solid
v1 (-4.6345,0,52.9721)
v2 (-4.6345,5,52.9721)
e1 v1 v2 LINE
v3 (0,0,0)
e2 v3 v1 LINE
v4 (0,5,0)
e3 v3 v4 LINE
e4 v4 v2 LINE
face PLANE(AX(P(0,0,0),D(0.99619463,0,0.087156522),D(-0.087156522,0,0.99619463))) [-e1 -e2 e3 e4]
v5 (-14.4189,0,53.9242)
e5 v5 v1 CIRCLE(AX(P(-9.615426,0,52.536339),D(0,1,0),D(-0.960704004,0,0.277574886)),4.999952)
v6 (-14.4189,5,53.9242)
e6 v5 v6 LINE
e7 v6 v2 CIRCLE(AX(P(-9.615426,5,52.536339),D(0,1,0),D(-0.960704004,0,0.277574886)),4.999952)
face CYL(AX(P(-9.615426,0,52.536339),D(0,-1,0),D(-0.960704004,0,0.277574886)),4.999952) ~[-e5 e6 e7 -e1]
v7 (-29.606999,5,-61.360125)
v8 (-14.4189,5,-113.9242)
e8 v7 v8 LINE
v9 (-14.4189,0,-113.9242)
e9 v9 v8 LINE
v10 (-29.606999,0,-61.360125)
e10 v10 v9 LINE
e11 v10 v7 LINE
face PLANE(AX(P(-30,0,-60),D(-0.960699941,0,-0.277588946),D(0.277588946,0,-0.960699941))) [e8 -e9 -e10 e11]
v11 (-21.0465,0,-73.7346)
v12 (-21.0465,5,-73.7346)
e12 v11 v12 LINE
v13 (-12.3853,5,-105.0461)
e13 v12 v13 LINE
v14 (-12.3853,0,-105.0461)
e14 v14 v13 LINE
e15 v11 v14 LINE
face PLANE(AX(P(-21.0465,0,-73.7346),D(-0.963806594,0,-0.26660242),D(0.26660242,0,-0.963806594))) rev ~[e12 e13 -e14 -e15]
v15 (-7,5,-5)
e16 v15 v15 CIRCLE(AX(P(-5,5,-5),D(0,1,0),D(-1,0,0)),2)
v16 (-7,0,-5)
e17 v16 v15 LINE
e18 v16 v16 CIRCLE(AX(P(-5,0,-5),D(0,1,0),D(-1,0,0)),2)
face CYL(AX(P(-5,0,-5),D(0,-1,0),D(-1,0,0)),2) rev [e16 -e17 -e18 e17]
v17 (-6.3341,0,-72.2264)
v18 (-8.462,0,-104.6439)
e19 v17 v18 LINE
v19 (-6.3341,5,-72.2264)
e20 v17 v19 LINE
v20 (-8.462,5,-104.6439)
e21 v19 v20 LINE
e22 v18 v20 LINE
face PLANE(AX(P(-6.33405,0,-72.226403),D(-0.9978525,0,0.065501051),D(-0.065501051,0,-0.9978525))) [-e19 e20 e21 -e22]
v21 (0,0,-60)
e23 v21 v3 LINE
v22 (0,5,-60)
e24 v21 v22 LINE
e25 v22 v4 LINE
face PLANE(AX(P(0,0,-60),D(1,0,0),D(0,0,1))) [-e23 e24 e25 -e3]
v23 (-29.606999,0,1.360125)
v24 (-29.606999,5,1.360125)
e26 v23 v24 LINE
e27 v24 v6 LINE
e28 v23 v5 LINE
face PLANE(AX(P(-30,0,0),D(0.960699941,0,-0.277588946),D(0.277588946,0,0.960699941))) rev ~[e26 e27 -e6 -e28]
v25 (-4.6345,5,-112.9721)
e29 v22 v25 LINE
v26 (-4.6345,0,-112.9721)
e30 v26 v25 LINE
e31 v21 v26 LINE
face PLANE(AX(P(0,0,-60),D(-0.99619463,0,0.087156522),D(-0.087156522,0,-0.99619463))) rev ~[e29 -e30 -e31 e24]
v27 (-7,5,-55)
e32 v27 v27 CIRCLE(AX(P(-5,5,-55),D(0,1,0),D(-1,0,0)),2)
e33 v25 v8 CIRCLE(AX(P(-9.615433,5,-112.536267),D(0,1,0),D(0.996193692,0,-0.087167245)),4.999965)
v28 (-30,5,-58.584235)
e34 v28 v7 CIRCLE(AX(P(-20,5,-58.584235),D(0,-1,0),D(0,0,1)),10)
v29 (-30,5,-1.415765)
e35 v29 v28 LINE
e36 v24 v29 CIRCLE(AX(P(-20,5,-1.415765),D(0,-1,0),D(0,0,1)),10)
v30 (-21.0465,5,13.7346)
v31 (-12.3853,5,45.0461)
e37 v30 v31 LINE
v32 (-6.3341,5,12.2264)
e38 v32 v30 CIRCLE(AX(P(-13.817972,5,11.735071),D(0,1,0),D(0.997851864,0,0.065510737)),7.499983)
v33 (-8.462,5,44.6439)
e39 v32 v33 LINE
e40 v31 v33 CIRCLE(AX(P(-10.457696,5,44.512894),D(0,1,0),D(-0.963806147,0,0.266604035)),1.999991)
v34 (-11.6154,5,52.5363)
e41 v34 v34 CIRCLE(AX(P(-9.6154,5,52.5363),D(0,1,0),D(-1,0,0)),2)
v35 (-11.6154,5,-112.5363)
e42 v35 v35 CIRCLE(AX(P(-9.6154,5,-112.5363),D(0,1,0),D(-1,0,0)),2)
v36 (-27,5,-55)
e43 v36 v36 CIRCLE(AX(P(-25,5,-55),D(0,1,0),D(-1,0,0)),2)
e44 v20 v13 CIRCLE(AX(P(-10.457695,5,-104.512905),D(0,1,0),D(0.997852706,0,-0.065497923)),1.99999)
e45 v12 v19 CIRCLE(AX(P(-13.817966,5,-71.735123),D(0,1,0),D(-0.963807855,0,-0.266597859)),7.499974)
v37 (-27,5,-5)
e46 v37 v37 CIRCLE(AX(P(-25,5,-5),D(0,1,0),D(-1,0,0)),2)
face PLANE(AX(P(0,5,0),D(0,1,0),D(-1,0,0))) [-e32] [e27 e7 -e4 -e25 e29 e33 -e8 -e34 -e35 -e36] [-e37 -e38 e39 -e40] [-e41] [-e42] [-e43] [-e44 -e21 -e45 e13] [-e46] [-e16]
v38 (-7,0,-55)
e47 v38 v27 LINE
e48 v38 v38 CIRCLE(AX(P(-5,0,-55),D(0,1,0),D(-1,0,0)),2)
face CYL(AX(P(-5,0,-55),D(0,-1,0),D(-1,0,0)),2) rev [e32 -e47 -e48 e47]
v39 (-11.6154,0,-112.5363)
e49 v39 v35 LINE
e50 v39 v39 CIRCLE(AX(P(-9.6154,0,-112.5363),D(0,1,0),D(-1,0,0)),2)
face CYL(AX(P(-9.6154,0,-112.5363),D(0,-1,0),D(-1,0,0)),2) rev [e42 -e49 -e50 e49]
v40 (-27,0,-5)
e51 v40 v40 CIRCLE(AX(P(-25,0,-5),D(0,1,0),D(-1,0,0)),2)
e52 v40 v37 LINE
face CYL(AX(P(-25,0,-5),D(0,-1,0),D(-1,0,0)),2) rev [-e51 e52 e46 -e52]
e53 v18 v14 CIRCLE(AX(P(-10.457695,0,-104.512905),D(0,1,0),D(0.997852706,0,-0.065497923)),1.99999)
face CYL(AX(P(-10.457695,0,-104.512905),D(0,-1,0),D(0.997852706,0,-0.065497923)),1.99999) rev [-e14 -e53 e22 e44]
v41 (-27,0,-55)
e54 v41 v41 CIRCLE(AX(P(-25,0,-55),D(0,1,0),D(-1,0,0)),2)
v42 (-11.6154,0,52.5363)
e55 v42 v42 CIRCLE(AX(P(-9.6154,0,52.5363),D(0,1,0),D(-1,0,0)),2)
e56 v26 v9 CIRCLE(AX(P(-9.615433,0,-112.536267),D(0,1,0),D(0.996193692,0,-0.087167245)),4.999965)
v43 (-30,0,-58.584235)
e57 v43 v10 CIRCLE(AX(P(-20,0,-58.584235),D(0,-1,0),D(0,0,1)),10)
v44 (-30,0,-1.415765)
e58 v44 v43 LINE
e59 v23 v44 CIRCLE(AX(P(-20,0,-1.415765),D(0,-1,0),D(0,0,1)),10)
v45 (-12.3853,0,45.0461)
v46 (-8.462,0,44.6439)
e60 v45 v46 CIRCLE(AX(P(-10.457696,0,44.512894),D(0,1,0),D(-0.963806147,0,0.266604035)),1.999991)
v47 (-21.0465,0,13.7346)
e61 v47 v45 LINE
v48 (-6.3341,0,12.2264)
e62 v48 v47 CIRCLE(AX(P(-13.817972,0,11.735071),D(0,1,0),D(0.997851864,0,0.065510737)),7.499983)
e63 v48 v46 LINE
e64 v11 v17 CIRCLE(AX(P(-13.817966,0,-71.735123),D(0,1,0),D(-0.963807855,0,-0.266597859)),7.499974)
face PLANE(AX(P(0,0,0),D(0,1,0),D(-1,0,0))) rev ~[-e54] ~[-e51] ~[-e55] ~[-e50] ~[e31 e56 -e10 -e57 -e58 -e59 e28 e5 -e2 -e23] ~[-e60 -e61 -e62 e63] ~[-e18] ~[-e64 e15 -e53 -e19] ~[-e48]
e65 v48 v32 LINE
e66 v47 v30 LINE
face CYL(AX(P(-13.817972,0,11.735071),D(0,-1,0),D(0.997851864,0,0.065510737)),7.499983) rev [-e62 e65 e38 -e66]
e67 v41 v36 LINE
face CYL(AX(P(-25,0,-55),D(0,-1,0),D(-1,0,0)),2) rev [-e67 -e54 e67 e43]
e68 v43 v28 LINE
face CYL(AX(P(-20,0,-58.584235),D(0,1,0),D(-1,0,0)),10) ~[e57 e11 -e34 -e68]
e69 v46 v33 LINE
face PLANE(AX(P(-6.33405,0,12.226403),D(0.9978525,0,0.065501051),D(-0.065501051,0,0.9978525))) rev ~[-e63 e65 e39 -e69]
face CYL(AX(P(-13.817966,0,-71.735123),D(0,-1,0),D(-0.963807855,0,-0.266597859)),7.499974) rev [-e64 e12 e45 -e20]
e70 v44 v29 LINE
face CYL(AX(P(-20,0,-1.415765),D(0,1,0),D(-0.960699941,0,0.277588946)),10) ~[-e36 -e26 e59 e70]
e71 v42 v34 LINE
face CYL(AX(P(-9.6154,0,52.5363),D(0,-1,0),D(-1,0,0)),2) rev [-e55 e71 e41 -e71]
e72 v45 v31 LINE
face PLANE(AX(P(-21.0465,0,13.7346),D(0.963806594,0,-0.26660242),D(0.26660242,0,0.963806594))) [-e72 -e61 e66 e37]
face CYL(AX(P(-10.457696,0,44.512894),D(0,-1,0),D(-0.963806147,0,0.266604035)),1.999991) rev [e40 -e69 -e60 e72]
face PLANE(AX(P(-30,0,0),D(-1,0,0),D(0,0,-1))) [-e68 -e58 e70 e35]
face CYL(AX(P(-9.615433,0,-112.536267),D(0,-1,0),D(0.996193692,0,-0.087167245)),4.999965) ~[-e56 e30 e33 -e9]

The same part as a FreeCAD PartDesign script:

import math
import FreeCAD as App
import Part
import Sketcher

V = App.Vector
Q = App.Units.Quantity


def edges_at(feature, points):
    """Names of the edges that pass closest to the given points."""
    edges = feature.Shape.Edges
    near = lambda p: min(range(len(edges)), key=lambda i: edges[i].distToShape(Part.Vertex(*p))[0])
    return sorted({f"Edge{near(p) + 1}" for p in points})

doc = App.newDocument("Part")
params = doc.addObject("Spreadsheet::Sheet", "Params")
for row, (alias, value) in enumerate([
    ("sketch1_diameter", "4 mm"),
    ("sketch1_radius", "5 mm"),
    ("sketch1_radius2", "7.5 mm"),
    ("sketch1_height", "60 mm"),
    ("sketch1_length", "56.13 mm"),
    ("pad1_length", "5 mm"),
    ("fillet_radius", "10 mm"),
], start=1):
    params.set(f"A{row}", alias)
    params.set(f"B{row}", "=" + value)
    params.setAlias(f"B{row}", alias)

body = doc.addObject("PartDesign::Body", "Body")

# Sketch on XZ plane
sketch1 = body.newObject("Sketcher::SketchObject", "Sketch")
sketch1.AttachmentSupport = (doc.getObject("XZ_Plane"), [""])
sketch1.MapMode = "FlatFace"
sketch1.addGeometry(Part.LineSegment(V(-4.6, 53, 0), V(0, 0, 0)), False)
sketch1.addGeometry(Part.LineSegment(V(0, 0, 0), V(0, -60, 0)), False)
sketch1.addGeometry(Part.LineSegment(V(0, -60, 0), V(-4.6, -113, 0)), False)
sketch1.addGeometry(Part.ArcOfCircle(Part.Circle(V(-9.6, -112.5, 0), V(0, 0, 1), 5), math.radians(-164), math.radians(-5)), False)
sketch1.addGeometry(Part.LineSegment(V(-14.4, -113.9, 0), V(-30, -60, 0)), False)
sketch1.addGeometry(Part.LineSegment(V(-30, -60, 0), V(-30, 0, 0)), False)
sketch1.addGeometry(Part.LineSegment(V(-30, 0, 0), V(-14.4, 53.9, 0)), False)
sketch1.addGeometry(Part.ArcOfCircle(Part.Circle(V(-9.6, 52.5, 0), V(0, 0, 1), 5), math.radians(5), math.radians(164)), False)
sketch1.addGeometry(Part.ArcOfCircle(Part.Circle(V(-13.8, 11.7, 0), V(0, 0, 1), 7.5), math.radians(165), math.radians(364)), False)
sketch1.addGeometry(Part.LineSegment(V(-6.3, 12.2, 0), V(-8.5, 44.6, 0)), False)
sketch1.addGeometry(Part.ArcOfCircle(Part.Circle(V(-10.5, 44.5, 0), V(0, 0, 1), 2), math.radians(4), math.radians(165)), False)
sketch1.addGeometry(Part.LineSegment(V(-12.4, 45, 0), V(-21, 13.7, 0)), False)
sketch1.addGeometry(Part.Circle(V(-9.6, 52.5, 0), V(0, 0, 1), 2), False)
sketch1.addGeometry(Part.Circle(V(-25, -5, 0), V(0, 0, 1), 2), False)
sketch1.addGeometry(Part.Circle(V(-5, -55, 0), V(0, 0, 1), 2), False)
sketch1.addGeometry(Part.Circle(V(-25, -55, 0), V(0, 0, 1), 2), False)
sketch1.addGeometry(Part.Circle(V(-5, -5, 0), V(0, 0, 1), 2), False)
sketch1.addGeometry(Part.LineSegment(V(-21, -73.7, 0), V(-12.4, -105, 0)), False)
sketch1.addGeometry(Part.ArcOfCircle(Part.Circle(V(-10.5, -104.5, 0), V(0, 0, 1), 2), math.radians(-165), math.radians(-4)), False)
sketch1.addGeometry(Part.LineSegment(V(-8.5, -104.6, 0), V(-6.3, -72.2, 0)), False)
sketch1.addGeometry(Part.ArcOfCircle(Part.Circle(V(-13.8, -71.7, 0), V(0, 0, 1), 7.5), math.radians(-4), math.radians(195)), False)
sketch1.addGeometry(Part.Circle(V(-9.6, -112.5, 0), V(0, 0, 1), 2), False)
sketch1.addConstraint(Sketcher.Constraint("Coincident", 0, 2, 1, 1))
sketch1.addConstraint(Sketcher.Constraint("Coincident", 1, 2, 2, 1))
sketch1.addConstraint(Sketcher.Constraint("Tangent", 2, 2, 3, 2))
sketch1.addConstraint(Sketcher.Constraint("Tangent", 3, 1, 4, 1))
sketch1.addConstraint(Sketcher.Constraint("Coincident", 4, 2, 5, 1))
sketch1.addConstraint(Sketcher.Constraint("Coincident", 5, 2, 6, 1))
sketch1.addConstraint(Sketcher.Constraint("Tangent", 6, 2, 7, 2))
sketch1.addConstraint(Sketcher.Constraint("Tangent", 7, 1, 0, 1))
sketch1.addConstraint(Sketcher.Constraint("Tangent", 8, 2, 9, 1))
sketch1.addConstraint(Sketcher.Constraint("Tangent", 9, 2, 10, 1))
sketch1.addConstraint(Sketcher.Constraint("Tangent", 10, 2, 11, 1))
sketch1.addConstraint(Sketcher.Constraint("Tangent", 11, 2, 8, 1))
sketch1.addConstraint(Sketcher.Constraint("Tangent", 17, 2, 18, 1))
sketch1.addConstraint(Sketcher.Constraint("Tangent", 18, 2, 19, 1))
sketch1.addConstraint(Sketcher.Constraint("Tangent", 19, 2, 20, 1))
sketch1.addConstraint(Sketcher.Constraint("Tangent", 20, 2, 17, 1))
sketch1.addConstraint(Sketcher.Constraint("Vertical", 1))
sketch1.addConstraint(Sketcher.Constraint("Vertical", 5))
sketch1.addConstraint(Sketcher.Constraint("Coincident", 0, 2, -1, 1))
sketch1.addConstraint(Sketcher.Constraint("Coincident", 12, 3, 7, 3))
sketch1.addConstraint(Sketcher.Constraint("Coincident", 21, 3, 3, 3))
sketch1.addConstraint(Sketcher.Constraint("Equal", 3, 7))
sketch1.addConstraint(Sketcher.Constraint("Equal", 10, 12))
sketch1.addConstraint(Sketcher.Constraint("Equal", 12, 13))
sketch1.addConstraint(Sketcher.Constraint("Equal", 13, 14))
sketch1.addConstraint(Sketcher.Constraint("Equal", 14, 15))
sketch1.addConstraint(Sketcher.Constraint("Equal", 15, 16))
sketch1.addConstraint(Sketcher.Constraint("Equal", 16, 18))
sketch1.addConstraint(Sketcher.Constraint("Equal", 8, 20))
sketch1.addConstraint(Sketcher.Constraint("Equal", 18, 21))
sketch1.addConstraint(Sketcher.Constraint("PointOnObject", 5, 2, -1))
sketch1.addConstraint(Sketcher.Constraint("Horizontal", 14, 3, 15, 3))
sketch1.addConstraint(Sketcher.Constraint("Horizontal", 13, 3, 16, 3))
sketch1.addConstraint(Sketcher.Constraint("Horizontal", 1, 2, 4, 2))
sketch1.addConstraint(Sketcher.Constraint("Vertical", 3, 3, 7, 3))
sketch1.addConstraint(Sketcher.Constraint("Vertical", 13, 3, 15, 3))
sketch1.addConstraint(Sketcher.Constraint("Vertical", 14, 3, 16, 3))
sketch1.addConstraint(Sketcher.Constraint("Vertical", 10, 3, 18, 3))
sketch1.addConstraint(Sketcher.Constraint("Vertical", 8, 3, 20, 3))
sketch1.addConstraint(Sketcher.Constraint("Vertical", 3, 1, 6, 2))
sketch1.addConstraint(Sketcher.Constraint("Vertical", 10, 2, 17, 2))
sketch1.addConstraint(Sketcher.Constraint("Diameter", 12, Q("4 mm")))
sketch1.addConstraint(Sketcher.Constraint("Radius", 3, Q("5 mm")))
sketch1.addConstraint(Sketcher.Constraint("Radius", 8, Q("7.5 mm")))
sketch1.addConstraint(Sketcher.Constraint("DistanceY", 1, 2, 1, 1, Q("60 mm")))
sketch1.addConstraint(Sketcher.Constraint("Angle", 0, Q("-85 deg")))
sketch1.addConstraint(Sketcher.Constraint("DistanceY", 13, 3, -1, 1, Q("5 mm")))
sketch1.addConstraint(Sketcher.Constraint("DistanceX", 14, 3, -1, 1, Q("5 mm")))
sketch1.addConstraint(Sketcher.Constraint("DistanceX", 4, 2, -1, 1, Q("30 mm")))
sketch1.addConstraint(Sketcher.Constraint("DistanceY", 1, 2, 14, 3, Q("5 mm")))
sketch1.addConstraint(Sketcher.Constraint("DistanceX", 4, 2, 15, 3, Q("5 mm")))
sketch1.addConstraint(Sketcher.Constraint("Distance", 4, Q("56.13 mm")))
sketch1.addConstraint(Sketcher.Constraint("DistanceX", 10, 2, 7, 3, Q("2.77 mm")))
sketch1.addConstraint(Sketcher.Constraint("DistanceX", 8, 3, -1, 1, Q("13.818 mm")))
sketch1.addConstraint(Sketcher.Constraint("DistanceY", -1, 1, 8, 3, Q("11.735 mm")))
sketch1.addConstraint(Sketcher.Constraint("DistanceY", -1, 1, 10, 3, Q("44.513 mm")))
sketch1.addConstraint(Sketcher.Constraint("DistanceY", 18, 3, -1, 1, Q("104.513 mm")))
sketch1.setExpression("Constraints[41]", "Params.sketch1_diameter")
sketch1.setExpression("Constraints[42]", "Params.sketch1_radius")
sketch1.setExpression("Constraints[43]", "Params.sketch1_radius2")
sketch1.setExpression("Constraints[44]", "Params.sketch1_height")
sketch1.setExpression("Constraints[51]", "Params.sketch1_length")
pad1 = body.newObject("PartDesign::Pad", "Pad")
pad1.Profile = sketch1
pad1.setExpression("Length", "Params.pad1_length")
pad1.Reversed = True
doc.recompute()

fillet = body.newObject("PartDesign::Fillet", "Fillet")
fillet.Base = (pad1, edges_at(pad1, [(-30, 2.5, 0), (-30, 2.5, -60)]))
fillet.setExpression("Radius", "Params.fillet_radius")

doc.recompute()
